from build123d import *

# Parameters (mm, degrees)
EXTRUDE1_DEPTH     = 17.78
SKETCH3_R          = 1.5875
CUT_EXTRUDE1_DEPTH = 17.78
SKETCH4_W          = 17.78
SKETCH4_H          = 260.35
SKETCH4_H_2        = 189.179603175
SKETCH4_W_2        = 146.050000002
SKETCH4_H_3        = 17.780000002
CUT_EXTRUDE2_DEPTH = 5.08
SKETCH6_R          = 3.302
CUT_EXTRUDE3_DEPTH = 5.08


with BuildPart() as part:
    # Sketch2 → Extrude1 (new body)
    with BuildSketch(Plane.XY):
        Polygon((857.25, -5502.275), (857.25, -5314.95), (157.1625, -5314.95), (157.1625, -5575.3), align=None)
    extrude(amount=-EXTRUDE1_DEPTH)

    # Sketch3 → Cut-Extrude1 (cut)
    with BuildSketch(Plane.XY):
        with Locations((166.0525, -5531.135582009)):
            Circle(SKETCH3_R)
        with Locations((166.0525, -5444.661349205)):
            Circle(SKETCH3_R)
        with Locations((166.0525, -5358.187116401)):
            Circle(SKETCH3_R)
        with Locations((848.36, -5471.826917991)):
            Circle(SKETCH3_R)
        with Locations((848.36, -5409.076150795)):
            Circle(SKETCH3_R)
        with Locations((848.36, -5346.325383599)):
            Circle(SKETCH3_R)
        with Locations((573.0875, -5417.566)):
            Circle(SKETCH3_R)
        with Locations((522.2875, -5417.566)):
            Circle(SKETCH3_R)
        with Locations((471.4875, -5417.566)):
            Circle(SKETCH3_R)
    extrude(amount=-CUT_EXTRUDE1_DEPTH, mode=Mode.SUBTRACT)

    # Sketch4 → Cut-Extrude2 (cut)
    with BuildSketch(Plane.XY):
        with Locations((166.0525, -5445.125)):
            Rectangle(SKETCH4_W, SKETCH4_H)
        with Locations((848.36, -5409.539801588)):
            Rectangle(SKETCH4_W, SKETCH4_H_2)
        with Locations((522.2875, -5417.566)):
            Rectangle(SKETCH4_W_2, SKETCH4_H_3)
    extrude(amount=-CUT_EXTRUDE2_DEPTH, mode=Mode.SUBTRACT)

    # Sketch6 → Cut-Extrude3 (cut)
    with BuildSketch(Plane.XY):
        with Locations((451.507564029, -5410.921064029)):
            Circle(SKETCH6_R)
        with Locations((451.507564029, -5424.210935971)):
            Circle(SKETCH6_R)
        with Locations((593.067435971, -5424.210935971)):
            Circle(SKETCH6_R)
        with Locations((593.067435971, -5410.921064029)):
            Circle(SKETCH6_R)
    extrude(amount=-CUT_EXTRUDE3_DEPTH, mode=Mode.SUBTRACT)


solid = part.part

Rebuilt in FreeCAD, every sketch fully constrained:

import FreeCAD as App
import Part
import Sketcher

V = App.Vector
Q = App.Units.Quantity


def add_polygon(sketch, points):
    """Adds a closed chain of lines whose ends are joined by coincident constraints."""
    first, n = sketch.GeometryCount, len(points)
    for a, b in zip(points, points[1:] + points[:1]):
        sketch.addGeometry(Part.LineSegment(App.Vector(*a, 0), App.Vector(*b, 0)), False)
    for i in range(n):
        sketch.addConstraint(Sketcher.Constraint("Coincident", first + i, 2, first + (i + 1) % n, 1))

doc = App.newDocument("Part")
body = doc.addObject("PartDesign::Body", "Body")

# Sketch on XY plane
sketch1 = body.newObject("Sketcher::SketchObject", "Sketch")
sketch1.AttachmentSupport = (doc.getObject("XY_Plane"), [""])
sketch1.MapMode = "FlatFace"
add_polygon(sketch1, [(857, -5502), (857, -5315), (157, -5315), (157, -5575)])  # lines 0-3
sketch1.addConstraint(Sketcher.Constraint("Vertical", 0))
sketch1.addConstraint(Sketcher.Constraint("Horizontal", 1))
sketch1.addConstraint(Sketcher.Constraint("Vertical", 2))
sketch1.addConstraint(Sketcher.Constraint("DistanceY", 2, 2, 2, 1, Q("10.25 in")))
sketch1.addConstraint(Sketcher.Constraint("DistanceY", 2, 2, -1, 1, Q("219.5 in")))
sketch1.addConstraint(Sketcher.Constraint("DistanceX", 1, 2, 1, 1, Q("27.5625 in")))
sketch1.addConstraint(Sketcher.Constraint("DistanceY", 0, 1, 0, 2, Q("7.375 in")))
sketch1.addConstraint(Sketcher.Constraint("DistanceX", -1, 1, 0, 2, Q("33.75 in")))
pad1 = body.newObject("PartDesign::Pad", "Pad")
pad1.Profile = sketch1
pad1.Length = Q("0.7 in")
pad1.Reversed = True

# Sketch on XY plane
sketch2 = body.newObject("Sketcher::SketchObject", "Sketch001")
sketch2.AttachmentSupport = (doc.getObject("XY_Plane"), [""])
sketch2.MapMode = "FlatFace"
sketch2.addGeometry(Part.Circle(V(166.1, -5531.1, 0), V(0, 0, 1), 1.6), False)
sketch2.addGeometry(Part.Circle(V(166.1, -5444.7, 0), V(0, 0, 1), 1.6), False)
sketch2.addGeometry(Part.Circle(V(166.1, -5358.2, 0), V(0, 0, 1), 1.6), False)
sketch2.addGeometry(Part.Circle(V(848.4, -5471.8, 0), V(0, 0, 1), 1.6), False)
sketch2.addGeometry(Part.Circle(V(848.4, -5409.1, 0), V(0, 0, 1), 1.6), False)
sketch2.addGeometry(Part.Circle(V(848.4, -5346.3, 0), V(0, 0, 1), 1.6), False)
sketch2.addGeometry(Part.Circle(V(573.1, -5417.6, 0), V(0, 0, 1), 1.6), False)
sketch2.addGeometry(Part.Circle(V(522.3, -5417.6, 0), V(0, 0, 1), 1.6), False)
sketch2.addGeometry(Part.Circle(V(471.5, -5417.6, 0), V(0, 0, 1), 1.6), False)
sketch2.addConstraint(Sketcher.Constraint("Equal", 0, 1))
sketch2.addConstraint(Sketcher.Constraint("Equal", 1, 2))
sketch2.addConstraint(Sketcher.Constraint("Equal", 2, 3))
sketch2.addConstraint(Sketcher.Constraint("Equal", 3, 4))
sketch2.addConstraint(Sketcher.Constraint("Equal", 4, 5))
sketch2.addConstraint(Sketcher.Constraint("Equal", 5, 6))
sketch2.addConstraint(Sketcher.Constraint("Equal", 6, 7))
sketch2.addConstraint(Sketcher.Constraint("Equal", 7, 8))
sketch2.addConstraint(Sketcher.Constraint("Horizontal", 6, 3, 7, 3))
sketch2.addConstraint(Sketcher.Constraint("Horizontal", 7, 3, 8, 3))
sketch2.addConstraint(Sketcher.Constraint("Vertical", 0, 3, 1, 3))
sketch2.addConstraint(Sketcher.Constraint("Vertical", 1, 3, 2, 3))
sketch2.addConstraint(Sketcher.Constraint("Vertical", 3, 3, 4, 3))
sketch2.addConstraint(Sketcher.Constraint("Vertical", 4, 3, 5, 3))
sketch2.addConstraint(Sketcher.Constraint("Diameter", 0, Q("0.125 in")))
sketch2.addConstraint(Sketcher.Constraint("DistanceX", 7, 3, 6, 3, Q("2 in")))
sketch2.addConstraint(Sketcher.Constraint("DistanceX", 8, 3, 7, 3, Q("2 in")))
sketch2.addConstraint(Sketcher.Constraint("DistanceX", -1, 1, 3, 3, Q("33.4 in")))
sketch2.addConstraint(Sketcher.Constraint("DistanceY", 6, 3, -1, 1, Q("213.29 in")))
sketch2.addConstraint(Sketcher.Constraint("DistanceX", -1, 1, 6, 3, Q("22.5625 in")))
sketch2.addConstraint(Sketcher.Constraint("DistanceX", 1, 3, 6, 3, Q("16.025 in")))
sketch2.addConstraint(Sketcher.Constraint("DistanceY", 3, 3, 2, 3, Q("113.639802 mm")))
sketch2.addConstraint(Sketcher.Constraint("DistanceY", 1, 3, 4, 3, Q("35.585198 mm")))
sketch2.addConstraint(Sketcher.Constraint("DistanceY", 0, 3, 5, 3, Q("184.810198 mm")))
sketch2.addConstraint(Sketcher.Constraint("DistanceY", 1, 3, -1, 1, Q("5444.661349 mm")))
sketch2.addConstraint(Sketcher.Constraint("DistanceY", 3, 3, 1, 3, Q("27.165569 mm")))
sketch2.addConstraint(Sketcher.Constraint("DistanceY", 0, 3, 4, 3, Q("122.059431 mm")))
pocket1 = body.newObject("PartDesign::Pocket", "Pocket")
pocket1.Profile = sketch2
pocket1.Length = Q("0.7 in")

# Sketch on XY plane
sketch3 = body.newObject("Sketcher::SketchObject", "Sketch002")
sketch3.AttachmentSupport = (doc.getObject("XY_Plane"), [""])
sketch3.MapMode = "FlatFace"
add_polygon(sketch3, [(157, -5315), (157, -5575), (175, -5575), (175, -5315)])  # lines 0-3
add_polygon(sketch3, [(839, -5315), (839, -5504), (857, -5504), (857, -5315)])  # lines 4-7
add_polygon(sketch3, [(449, -5409), (449, -5426), (595, -5426), (595, -5409)])  # lines 8-11
sketch3.addConstraint(Sketcher.Constraint("Vertical", 0))
sketch3.addConstraint(Sketcher.Constraint("Horizontal", 1))
sketch3.addConstraint(Sketcher.Constraint("Vertical", 2))
sketch3.addConstraint(Sketcher.Constraint("Horizontal", 3))
sketch3.addConstraint(Sketcher.Constraint("Vertical", 4))
sketch3.addConstraint(Sketcher.Constraint("Horizontal", 5))
sketch3.addConstraint(Sketcher.Constraint("Vertical", 6))
sketch3.addConstraint(Sketcher.Constraint("Horizontal", 7))
sketch3.addConstraint(Sketcher.Constraint("Vertical", 8))
sketch3.addConstraint(Sketcher.Constraint("Horizontal", 9))
sketch3.addConstraint(Sketcher.Constraint("Vertical", 10))
sketch3.addConstraint(Sketcher.Constraint("Horizontal", 11))
sketch3.addConstraint(Sketcher.Constraint("Horizontal", 3, 2, 6, 2))
sketch3.addConstraint(Sketcher.Constraint("Equal", 3, 5))
sketch3.addConstraint(Sketcher.Constraint("Equal", 7, 8))
sketch3.addConstraint(Sketcher.Constraint("DistanceX", 1, 1, 1, 2, Q("0.7 in")))
sketch3.addConstraint(Sketcher.Constraint("DistanceX", 9, 1, 9, 2, Q("5.75 in")))
sketch3.addConstraint(Sketcher.Constraint("DistanceY", 0, 2, 0, 1, Q("10.25 in")))
sketch3.addConstraint(Sketcher.Constraint("DistanceY", 0, 2, -1, 1, Q("219.5 in")))
sketch3.addConstraint(Sketcher.Constraint("DistanceX", 2, 2, 8, 2, Q("10.8 in")))
sketch3.addConstraint(Sketcher.Constraint("DistanceX", -1, 1, 4, 2, Q("33.05 in")))
sketch3.addConstraint(Sketcher.Constraint("DistanceY", 8, 2, -1, 1, Q("213.64 in")))
sketch3.addConstraint(Sketcher.Constraint("DistanceX", -1, 1, 0, 2, Q("6.1875 in")))
sketch3.addConstraint(Sketcher.Constraint("DistanceY", 4, 2, 4, 1, Q("189.179603 mm")))
pocket2 = body.newObject("PartDesign::Pocket", "Pocket001")
pocket2.Profile = sketch3
pocket2.Length = Q("0.2 in")

# Sketch on XY plane
sketch4 = body.newObject("Sketcher::SketchObject", "Sketch003")
sketch4.AttachmentSupport = (doc.getObject("XY_Plane"), [""])
sketch4.MapMode = "FlatFace"
sketch4.addGeometry(Part.Circle(V(451.5, -5410.9, 0), V(0, 0, 1), 3.3), False)
sketch4.addGeometry(Part.Circle(V(451.5, -5424.2, 0), V(0, 0, 1), 3.3), False)
sketch4.addGeometry(Part.Circle(V(593.1, -5424.2, 0), V(0, 0, 1), 3.3), False)
sketch4.addGeometry(Part.Circle(V(593.1, -5410.9, 0), V(0, 0, 1), 3.3), False)
sketch4.addConstraint(Sketcher.Constraint("Equal", 0, 1))
sketch4.addConstraint(Sketcher.Constraint("Equal", 1, 2))
sketch4.addConstraint(Sketcher.Constraint("Equal", 2, 3))
sketch4.addConstraint(Sketcher.Constraint("Horizontal", 1, 3, 2, 3))
sketch4.addConstraint(Sketcher.Constraint("Horizontal", 0, 3, 3, 3))
sketch4.addConstraint(Sketcher.Constraint("Vertical", 0, 3, 1, 3))
sketch4.addConstraint(Sketcher.Constraint("Vertical", 2, 3, 3, 3))
sketch4.addConstraint(Sketcher.Constraint("Diameter", 0, Q("0.26 in")))
sketch4.addConstraint(Sketcher.Constraint("DistanceY", 1, 3, 0, 3, Q("13.289872 mm")))
sketch4.addConstraint(Sketcher.Constraint("DistanceX", 1, 3, 2, 3, Q("141.559872 mm")))
sketch4.addConstraint(Sketcher.Constraint("DistanceX", -1, 1, 0, 3, Q("451.507564 mm")))
sketch4.addConstraint(Sketcher.Constraint("DistanceY", 0, 3, -1, 1, Q("5410.921064 mm")))
pocket3 = body.newObject("PartDesign::Pocket", "Pocket002")
pocket3.Profile = sketch4
pocket3.Length = Q("0.2 in")

doc.recompute()
